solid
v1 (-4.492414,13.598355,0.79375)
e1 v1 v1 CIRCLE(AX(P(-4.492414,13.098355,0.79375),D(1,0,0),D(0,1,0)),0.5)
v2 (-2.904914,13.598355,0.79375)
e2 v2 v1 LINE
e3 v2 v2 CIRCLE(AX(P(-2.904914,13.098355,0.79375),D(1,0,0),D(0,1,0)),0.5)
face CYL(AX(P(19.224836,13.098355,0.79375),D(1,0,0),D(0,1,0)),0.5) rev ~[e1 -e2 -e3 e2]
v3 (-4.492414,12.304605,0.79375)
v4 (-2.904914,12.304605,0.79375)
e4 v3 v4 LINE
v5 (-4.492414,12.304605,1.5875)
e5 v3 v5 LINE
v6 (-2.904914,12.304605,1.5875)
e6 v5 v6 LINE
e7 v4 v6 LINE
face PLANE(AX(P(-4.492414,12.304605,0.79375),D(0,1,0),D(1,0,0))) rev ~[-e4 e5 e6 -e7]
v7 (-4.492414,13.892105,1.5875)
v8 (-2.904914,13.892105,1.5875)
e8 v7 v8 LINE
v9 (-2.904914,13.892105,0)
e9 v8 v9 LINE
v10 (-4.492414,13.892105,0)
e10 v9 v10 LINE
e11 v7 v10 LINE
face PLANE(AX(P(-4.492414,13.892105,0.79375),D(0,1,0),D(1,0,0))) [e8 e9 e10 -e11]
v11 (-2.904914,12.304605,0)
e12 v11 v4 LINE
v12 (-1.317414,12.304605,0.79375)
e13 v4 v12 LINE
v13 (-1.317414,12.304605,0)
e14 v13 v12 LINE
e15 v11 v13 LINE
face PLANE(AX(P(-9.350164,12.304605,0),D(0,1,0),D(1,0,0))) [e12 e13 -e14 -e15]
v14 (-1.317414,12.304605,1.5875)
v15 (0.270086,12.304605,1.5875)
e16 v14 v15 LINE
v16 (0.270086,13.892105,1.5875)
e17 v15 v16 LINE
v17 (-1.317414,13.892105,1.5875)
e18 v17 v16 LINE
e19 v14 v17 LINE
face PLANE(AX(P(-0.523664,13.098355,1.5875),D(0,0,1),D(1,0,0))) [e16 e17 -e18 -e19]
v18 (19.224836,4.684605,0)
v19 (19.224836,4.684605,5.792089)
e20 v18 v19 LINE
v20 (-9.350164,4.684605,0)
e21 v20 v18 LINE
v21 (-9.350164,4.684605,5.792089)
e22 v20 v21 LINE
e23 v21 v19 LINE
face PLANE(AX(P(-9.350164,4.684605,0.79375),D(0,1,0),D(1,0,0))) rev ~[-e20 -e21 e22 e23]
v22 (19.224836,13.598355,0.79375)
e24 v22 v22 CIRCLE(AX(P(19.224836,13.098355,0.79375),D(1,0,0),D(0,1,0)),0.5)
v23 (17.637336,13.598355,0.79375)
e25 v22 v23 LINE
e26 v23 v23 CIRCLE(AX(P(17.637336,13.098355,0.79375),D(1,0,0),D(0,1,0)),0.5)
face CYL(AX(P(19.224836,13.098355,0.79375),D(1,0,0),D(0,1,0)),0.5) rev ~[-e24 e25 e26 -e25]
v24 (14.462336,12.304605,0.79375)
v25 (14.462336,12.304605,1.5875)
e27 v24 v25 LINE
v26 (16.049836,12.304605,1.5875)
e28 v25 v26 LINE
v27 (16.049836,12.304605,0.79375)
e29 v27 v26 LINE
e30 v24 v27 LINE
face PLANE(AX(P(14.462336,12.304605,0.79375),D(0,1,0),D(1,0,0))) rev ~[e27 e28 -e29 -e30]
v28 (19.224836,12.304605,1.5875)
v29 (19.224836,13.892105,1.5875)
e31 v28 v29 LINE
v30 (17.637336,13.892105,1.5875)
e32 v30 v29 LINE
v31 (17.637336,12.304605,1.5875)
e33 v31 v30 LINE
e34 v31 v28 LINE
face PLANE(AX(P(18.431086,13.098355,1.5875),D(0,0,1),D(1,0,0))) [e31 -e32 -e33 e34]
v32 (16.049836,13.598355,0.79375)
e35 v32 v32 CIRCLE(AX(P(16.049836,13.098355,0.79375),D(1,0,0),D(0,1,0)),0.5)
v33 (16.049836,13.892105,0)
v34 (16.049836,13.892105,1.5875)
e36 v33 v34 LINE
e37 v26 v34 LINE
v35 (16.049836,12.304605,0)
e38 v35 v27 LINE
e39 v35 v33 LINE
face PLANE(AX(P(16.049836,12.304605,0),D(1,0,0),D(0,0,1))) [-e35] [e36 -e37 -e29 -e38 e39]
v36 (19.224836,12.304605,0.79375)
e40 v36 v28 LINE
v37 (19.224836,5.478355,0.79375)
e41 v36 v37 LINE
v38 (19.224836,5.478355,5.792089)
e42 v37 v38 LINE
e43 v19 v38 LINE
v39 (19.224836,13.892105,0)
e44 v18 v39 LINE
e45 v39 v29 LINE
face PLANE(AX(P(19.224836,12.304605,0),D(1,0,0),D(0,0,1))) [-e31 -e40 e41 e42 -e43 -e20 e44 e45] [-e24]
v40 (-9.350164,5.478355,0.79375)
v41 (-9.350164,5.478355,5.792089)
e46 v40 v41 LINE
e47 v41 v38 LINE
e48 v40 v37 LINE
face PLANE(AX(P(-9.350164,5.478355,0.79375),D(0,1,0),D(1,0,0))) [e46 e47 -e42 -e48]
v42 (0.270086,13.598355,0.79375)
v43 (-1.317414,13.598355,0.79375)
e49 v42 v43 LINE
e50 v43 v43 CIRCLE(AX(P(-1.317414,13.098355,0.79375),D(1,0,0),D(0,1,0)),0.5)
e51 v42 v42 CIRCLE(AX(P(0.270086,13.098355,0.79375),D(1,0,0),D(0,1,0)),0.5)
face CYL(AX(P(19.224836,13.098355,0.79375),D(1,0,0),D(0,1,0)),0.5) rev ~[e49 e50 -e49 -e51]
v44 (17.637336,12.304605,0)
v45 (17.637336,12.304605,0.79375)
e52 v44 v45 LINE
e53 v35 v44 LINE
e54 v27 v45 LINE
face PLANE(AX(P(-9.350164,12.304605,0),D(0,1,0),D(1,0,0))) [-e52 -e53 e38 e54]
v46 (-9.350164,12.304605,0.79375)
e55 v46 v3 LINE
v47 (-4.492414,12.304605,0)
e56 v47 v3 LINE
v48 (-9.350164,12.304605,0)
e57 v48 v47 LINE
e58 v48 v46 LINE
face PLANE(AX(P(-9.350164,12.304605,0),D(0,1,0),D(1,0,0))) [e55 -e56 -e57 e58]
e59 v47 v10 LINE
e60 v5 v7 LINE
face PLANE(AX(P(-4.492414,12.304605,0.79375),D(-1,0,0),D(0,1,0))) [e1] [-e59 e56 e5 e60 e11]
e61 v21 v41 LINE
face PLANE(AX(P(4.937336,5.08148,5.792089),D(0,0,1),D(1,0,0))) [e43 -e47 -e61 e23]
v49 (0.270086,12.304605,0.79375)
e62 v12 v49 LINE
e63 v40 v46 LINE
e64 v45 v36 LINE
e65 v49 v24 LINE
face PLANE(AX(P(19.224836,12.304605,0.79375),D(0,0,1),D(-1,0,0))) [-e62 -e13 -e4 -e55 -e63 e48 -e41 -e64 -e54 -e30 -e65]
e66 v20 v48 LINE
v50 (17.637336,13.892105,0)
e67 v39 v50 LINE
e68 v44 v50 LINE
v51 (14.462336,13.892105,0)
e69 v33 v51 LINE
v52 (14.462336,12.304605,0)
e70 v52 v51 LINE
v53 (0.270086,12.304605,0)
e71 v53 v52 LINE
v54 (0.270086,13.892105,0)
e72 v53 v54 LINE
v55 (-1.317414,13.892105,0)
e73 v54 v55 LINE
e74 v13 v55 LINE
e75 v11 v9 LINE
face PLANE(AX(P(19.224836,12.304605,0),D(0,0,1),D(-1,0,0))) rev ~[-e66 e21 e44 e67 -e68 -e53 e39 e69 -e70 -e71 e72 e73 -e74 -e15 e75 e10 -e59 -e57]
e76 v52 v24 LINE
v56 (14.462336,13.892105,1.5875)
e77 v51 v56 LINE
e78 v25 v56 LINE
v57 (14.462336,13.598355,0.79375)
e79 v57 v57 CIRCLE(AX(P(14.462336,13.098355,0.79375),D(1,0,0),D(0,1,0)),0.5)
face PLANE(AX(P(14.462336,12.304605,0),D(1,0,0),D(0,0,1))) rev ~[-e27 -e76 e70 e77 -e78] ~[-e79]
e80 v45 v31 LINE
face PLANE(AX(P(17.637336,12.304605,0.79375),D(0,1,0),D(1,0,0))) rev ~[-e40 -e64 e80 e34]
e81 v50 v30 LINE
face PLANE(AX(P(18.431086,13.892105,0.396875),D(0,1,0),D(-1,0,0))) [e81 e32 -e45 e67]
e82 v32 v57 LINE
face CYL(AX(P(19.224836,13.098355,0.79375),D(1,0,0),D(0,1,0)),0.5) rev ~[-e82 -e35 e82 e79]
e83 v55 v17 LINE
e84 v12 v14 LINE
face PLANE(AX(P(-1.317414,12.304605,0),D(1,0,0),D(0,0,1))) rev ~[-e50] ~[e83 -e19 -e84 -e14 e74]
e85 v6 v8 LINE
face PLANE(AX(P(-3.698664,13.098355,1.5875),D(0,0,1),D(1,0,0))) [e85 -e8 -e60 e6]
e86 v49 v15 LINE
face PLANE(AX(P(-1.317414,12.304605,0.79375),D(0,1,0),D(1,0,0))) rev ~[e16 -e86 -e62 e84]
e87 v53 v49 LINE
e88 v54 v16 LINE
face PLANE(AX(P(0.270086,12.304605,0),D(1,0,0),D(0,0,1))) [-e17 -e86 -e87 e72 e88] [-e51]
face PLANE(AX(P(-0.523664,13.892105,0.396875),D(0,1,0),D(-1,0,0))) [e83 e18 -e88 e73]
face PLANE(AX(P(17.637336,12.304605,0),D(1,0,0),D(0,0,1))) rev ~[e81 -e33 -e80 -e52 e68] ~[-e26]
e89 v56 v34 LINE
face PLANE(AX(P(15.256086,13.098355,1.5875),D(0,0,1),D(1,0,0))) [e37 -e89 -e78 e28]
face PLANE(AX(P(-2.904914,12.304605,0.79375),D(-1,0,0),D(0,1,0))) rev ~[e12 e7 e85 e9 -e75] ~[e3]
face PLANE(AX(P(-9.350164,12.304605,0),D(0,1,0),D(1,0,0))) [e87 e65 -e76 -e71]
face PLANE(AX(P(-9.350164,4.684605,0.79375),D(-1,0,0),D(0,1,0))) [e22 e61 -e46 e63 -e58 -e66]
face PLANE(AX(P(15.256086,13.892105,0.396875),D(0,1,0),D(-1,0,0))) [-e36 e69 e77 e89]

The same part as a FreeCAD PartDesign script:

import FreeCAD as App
import Part
import Sketcher
from FreeCAD import Vector
Q = App.Units.Quantity


def add_polygon(sketch, points):
    """Adds a closed chain of lines whose ends are joined by coincident constraints."""
    first, n = sketch.GeometryCount, len(points)
    for a, b in zip(points, points[1:] + points[:1]):
        sketch.addGeometry(Part.LineSegment(App.Vector(*a, 0), App.Vector(*b, 0)), False)
    for i in range(n):
        sketch.addConstraint(Sketcher.Constraint("Coincident", first + i, 2, first + (i + 1) % n, 1))

doc = App.newDocument("Part")
body = doc.addObject("PartDesign::Body", "Body")

sketch1 = body.newObject("Sketcher::SketchObject", "Sketch")
sketch1.AttachmentSupport = (doc.getObject("XY_Plane"), [""])
sketch1.MapMode = "FlatFace"
add_polygon(sketch1, [(-9.350164, 12.304605), (-9.350164, 4.684605), (19.224836, 4.684605), (19.224836, 12.304605)])
sketch1.addConstraint([
    Sketcher.Constraint("Vertical", 0),
    Sketcher.Constraint("Horizontal", 1),
    Sketcher.Constraint("Vertical", 2),
    Sketcher.Constraint("Horizontal", 3),
    Sketcher.Constraint("DistanceY", 0, 2, 0, 1, Q("0.3 in")),
    Sketcher.Constraint("DistanceX", 1, 1, 1, 2, Q("1.125 in")),
    Sketcher.Constraint("DistanceX", 0, 2, -1, 1, 9.350164),
    Sketcher.Constraint("DistanceY", -1, 1, 0, 2, 4.684605),
])
pad1 = body.newObject("PartDesign::Pad", "Pad")
pad1.Profile = sketch1
pad1.Length = Q("0.03125 in")

sketch2 = body.newObject("Sketcher::SketchObject", "Sketch001")
sketch2.AttachmentSupport = (doc.getObject("XY_Plane"), [""])
sketch2.MapMode = "FlatFace"
sketch2.AttachmentOffset = App.Placement(Vector(0, 0, 0.03125 * 25.4), App.Rotation())
add_polygon(sketch2, [(-9.350164, 5.478355), (-9.350164, 4.684605), (19.224836, 4.684605), (19.224836, 5.478355)])
sketch2.addConstraint([
    Sketcher.Constraint("Vertical", 0),
    Sketcher.Constraint("Horizontal", 1),
    Sketcher.Constraint("Vertical", 2),
    Sketcher.Constraint("Horizontal", 3),
    Sketcher.Constraint("DistanceX", 1, 1, 1, 2, Q("1.125 in")),
    Sketcher.Constraint("DistanceY", 0, 2, 0, 1, Q("0.03125 in")),
    Sketcher.Constraint("DistanceX", 0, 2, -1, 1, 9.350164),
    Sketcher.Constraint("DistanceY", -1, 1, 0, 2, 4.684605),
])
pad2 = body.newObject("PartDesign::Pad", "Pad001")
pad2.Profile = sketch2
pad2.Length = 4.998339

sketch3 = body.newObject("Sketcher::SketchObject", "Sketch002")
sketch3.AttachmentSupport = (doc.getObject("XZ_Plane"), [""])
sketch3.MapMode = "FlatFace"
sketch3.AttachmentOffset = App.Placement(Vector(0, 0, -12.304605), App.Rotation())
add_polygon(sketch3, [(19.224836, 0.79375), (19.224836, 0), (17.637336, 0), (17.637336, 0.79375)])
add_polygon(sketch3, [(16.049836, 0.79375), (16.049836, 0), (14.462336, 0), (14.462336, 0.79375)])
add_polygon(sketch3, [(0.270086, 0.79375), (0.270086, 0), (-1.317414, 0), (-1.317414, 0.79375)])
add_polygon(sketch3, [(-2.904914, 0.79375), (-2.904914, 0), (-4.492414, 0), (-4.492414, 0.79375)])
sketch3.addConstraint([
    Sketcher.Constraint("Vertical", 0),
    Sketcher.Constraint("Horizontal", 1),
    Sketcher.Constraint("Vertical", 2),
    Sketcher.Constraint("Horizontal", 3),
    Sketcher.Constraint("Vertical", 4),
    Sketcher.Constraint("Horizontal", 5),
    Sketcher.Constraint("Vertical", 6),
    Sketcher.Constraint("Horizontal", 7),
    Sketcher.Constraint("Vertical", 8),
    Sketcher.Constraint("Horizontal", 9),
    Sketcher.Constraint("Vertical", 10),
    Sketcher.Constraint("Horizontal", 11),
    Sketcher.Constraint("Vertical", 12),
    Sketcher.Constraint("Horizontal", 13),
    Sketcher.Constraint("Vertical", 14),
    Sketcher.Constraint("Horizontal", 15),
    Sketcher.Constraint("PointOnObject", 0, 2, -1),
    Sketcher.Constraint("PointOnObject", 4, 2, -1),
    Sketcher.Constraint("PointOnObject", 8, 2, -1),
    Sketcher.Constraint("PointOnObject", 12, 2, -1),
    Sketcher.Constraint("Horizontal", 3, 2, 6, 2),
    Sketcher.Constraint("Horizontal", 7, 2, 10, 2),
    Sketcher.Constraint("Horizontal", 11, 2, 14, 2),
    Sketcher.Constraint("Equal", 3, 5),
    Sketcher.Constraint("Equal", 7, 9),
    Sketcher.Constraint("Equal", 11, 13),
    Sketcher.Constraint("DistanceX", 1, 2, 1, 1, Q("0.0625 in")),
    Sketcher.Constraint("DistanceY", 0, 2, 0, 1, Q("0.03125 in")),
    Sketcher.Constraint("DistanceX", 4, 2, 1, 2, Q("0.0625 in")),
    Sketcher.Constraint("DistanceX", 12, 2, 9, 2, Q("0.0625 in")),
    Sketcher.Constraint("DistanceX", 8, 2, 5, 2, 14.19225),
    Sketcher.Constraint("DistanceX", -1, 1, 0, 2, 19.224836),
])
pad3 = body.newObject("PartDesign::Pad", "Pad002")
pad3.Profile = sketch3
pad3.Length = Q("0.0625 in")
pad3.Reversed = True

sketch4 = body.newObject("Sketcher::SketchObject", "Sketch003")
sketch4.AttachmentSupport = (doc.getObject("XY_Plane"), [""])
sketch4.MapMode = "FlatFace"
sketch4.AttachmentOffset = App.Placement(Vector(0, 0, 0.03125 * 25.4), App.Rotation())
add_polygon(sketch4, [(-4.492414, 13.892105), (-4.492414, 12.304605), (-2.904914, 12.304605), (-2.904914, 13.892105)])
add_polygon(sketch4, [(-1.317414, 13.892105), (-1.317414, 12.304605), (0.270086, 12.304605), (0.270086, 13.892105)])
add_polygon(sketch4, [(14.462336, 13.892105), (14.462336, 12.304605), (16.049836, 12.304605), (16.049836, 13.892105)])
add_polygon(sketch4, [(17.637336, 13.892105), (17.637336, 12.304605), (19.224836, 12.304605), (19.224836, 13.892105)])
sketch4.addConstraint([
    Sketcher.Constraint("Vertical", 0),
    Sketcher.Constraint("Horizontal", 1),
    Sketcher.Constraint("Vertical", 2),
    Sketcher.Constraint("Horizontal", 3),
    Sketcher.Constraint("Vertical", 4),
    Sketcher.Constraint("Horizontal", 5),
    Sketcher.Constraint("Vertical", 6),
    Sketcher.Constraint("Horizontal", 7),
    Sketcher.Constraint("Vertical", 8),
    Sketcher.Constraint("Horizontal", 9),
    Sketcher.Constraint("Vertical", 10),
    Sketcher.Constraint("Horizontal", 11),
    Sketcher.Constraint("Vertical", 12),
    Sketcher.Constraint("Horizontal", 13),
    Sketcher.Constraint("Vertical", 14),
    Sketcher.Constraint("Horizontal", 15),
    Sketcher.Constraint("Horizontal", 1, 2, 4, 2),
    Sketcher.Constraint("Horizontal", 3, 2, 6, 2),
    Sketcher.Constraint("Horizontal", 5, 2, 8, 2),
    Sketcher.Constraint("Horizontal", 7, 2, 10, 2),
    Sketcher.Constraint("Horizontal", 9, 2, 12, 2),
    Sketcher.Constraint("Horizontal", 11, 2, 14, 2),
    Sketcher.Constraint("Equal", 3, 5),
    Sketcher.Constraint("Equal", 7, 9),
    Sketcher.Constraint("Equal", 11, 13),
    Sketcher.Constraint("Equal", 15, 0),
    Sketcher.Constraint("DistanceX", 1, 1, 1, 2, Q("0.0625 in")),
    Sketcher.Constraint("DistanceX", 1, 2, 4, 2, Q("0.0625 in")),
    Sketcher.Constraint("DistanceX", 9, 2, 12, 2, Q("0.0625 in")),
    Sketcher.Constraint("DistanceX", 5, 2, 8, 2, 14.19225),
    Sketcher.Constraint("DistanceX", 0, 2, -1, 1, 4.492414),
    Sketcher.Constraint("DistanceY", -1, 1, 0, 2, 12.304605),
])
pad4 = body.newObject("PartDesign::Pad", "Pad003")
pad4.Profile = sketch4
pad4.Length = Q("0.03125 in")

sketch5 = body.newObject("Sketcher::SketchObject", "Sketch004")
sketch5.AttachmentSupport = (doc.getObject("YZ_Plane"), [""])
sketch5.MapMode = "FlatFace"
sketch5.AttachmentOffset = App.Placement(Vector(0, 0, 19.224836), App.Rotation())
sketch5.addGeometry(Part.Circle(Vector(13.098355, 0.79375, 0), Vector(0, 0, 1), 0.5), False)
sketch5.addConstraint([
    Sketcher.Constraint("Diameter", 0, 1.0),
    Sketcher.Constraint("DistanceY", -1, 1, 0, 3, Q("0.03125 in")),
    Sketcher.Constraint("DistanceX", -1, 1, 0, 3, 13.098355),
])
pocket1 = body.newObject("PartDesign::Pocket", "Pocket")
pocket1.Profile = sketch5
pocket1.Length = Q("1 in")

doc.recompute()
